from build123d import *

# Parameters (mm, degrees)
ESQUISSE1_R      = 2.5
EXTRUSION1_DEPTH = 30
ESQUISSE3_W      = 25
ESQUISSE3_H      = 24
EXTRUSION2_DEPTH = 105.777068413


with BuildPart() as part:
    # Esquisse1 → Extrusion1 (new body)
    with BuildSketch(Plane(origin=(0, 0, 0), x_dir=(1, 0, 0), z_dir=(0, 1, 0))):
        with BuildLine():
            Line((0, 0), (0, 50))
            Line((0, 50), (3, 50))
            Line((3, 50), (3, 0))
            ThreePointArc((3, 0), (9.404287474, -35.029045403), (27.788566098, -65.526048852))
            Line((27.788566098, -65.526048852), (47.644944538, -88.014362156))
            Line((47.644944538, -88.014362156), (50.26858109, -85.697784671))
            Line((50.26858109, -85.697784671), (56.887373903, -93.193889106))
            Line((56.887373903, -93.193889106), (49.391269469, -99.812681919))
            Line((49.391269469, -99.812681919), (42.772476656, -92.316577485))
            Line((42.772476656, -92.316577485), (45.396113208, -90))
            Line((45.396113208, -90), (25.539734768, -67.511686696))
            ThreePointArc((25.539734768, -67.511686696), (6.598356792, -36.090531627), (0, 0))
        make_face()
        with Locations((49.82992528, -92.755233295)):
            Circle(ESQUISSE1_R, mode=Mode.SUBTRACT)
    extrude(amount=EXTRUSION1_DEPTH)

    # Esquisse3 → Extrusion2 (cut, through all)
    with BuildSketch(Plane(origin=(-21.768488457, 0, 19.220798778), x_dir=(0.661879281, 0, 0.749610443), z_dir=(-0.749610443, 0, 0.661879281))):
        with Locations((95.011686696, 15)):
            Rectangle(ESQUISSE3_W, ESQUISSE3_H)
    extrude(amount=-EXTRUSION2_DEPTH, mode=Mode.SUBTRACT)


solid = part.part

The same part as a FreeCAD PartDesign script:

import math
import FreeCAD as App
import Part
import Sketcher
from FreeCAD import Vector

doc = App.newDocument("Part")
body = doc.addObject("PartDesign::Body", "Body")

# Sketch on XZ plane
sketch1 = body.newObject("Sketcher::SketchObject", "Sketch")
sketch1.AttachmentSupport = (doc.getObject("XZ_Plane"), [""])
sketch1.MapMode = "FlatFace"
sketch1.addGeometry(Part.LineSegment(Vector(0, -50, 0), Vector(0, 0, 0)), False)
sketch1.addGeometry(Part.ArcOfCircle(Part.Circle(Vector(102, 0, 0), Vector(0, 0, 1), 102), math.radians(139), math.radians(180)), False)
sketch1.addGeometry(Part.LineSegment(Vector(25.5, 67.5, 0), Vector(45.4, 90, 0)), False)
sketch1.addGeometry(Part.LineSegment(Vector(45.4, 90, 0), Vector(42.8, 92.3, 0)), False)
sketch1.addGeometry(Part.LineSegment(Vector(42.8, 92.3, 0), Vector(49.4, 99.8, 0)), False)
sketch1.addGeometry(Part.LineSegment(Vector(49.4, 99.8, 0), Vector(56.9, 93.2, 0)), False)
sketch1.addGeometry(Part.LineSegment(Vector(56.9, 93.2, 0), Vector(50.3, 85.7, 0)), False)
sketch1.addGeometry(Part.LineSegment(Vector(50.3, 85.7, 0), Vector(47.6, 88, 0)), False)
sketch1.addGeometry(Part.LineSegment(Vector(47.6, 88, 0), Vector(27.8, 65.5, 0)), False)
sketch1.addGeometry(Part.ArcOfCircle(Part.Circle(Vector(102, 0, 0), Vector(0, 0, 1), 99), math.radians(139), math.radians(180)), False)
sketch1.addGeometry(Part.LineSegment(Vector(3, 0, 0), Vector(3, -50, 0)), False)
sketch1.addGeometry(Part.LineSegment(Vector(3, -50, 0), Vector(0, -50, 0)), False)
sketch1.addGeometry(Part.Circle(Vector(49.8, 92.8, 0), Vector(0, 0, 1), 2.5), False)
sketch1.addConstraint(Sketcher.Constraint("Tangent", 0, 2, 1, 2))
sketch1.addConstraint(Sketcher.Constraint("Tangent", 1, 1, 2, 1))
sketch1.addConstraint(Sketcher.Constraint("Coincident", 2, 2, 3, 1))
sketch1.addConstraint(Sketcher.Constraint("Coincident", 3, 2, 4, 1))
sketch1.addConstraint(Sketcher.Constraint("Coincident", 4, 2, 5, 1))
sketch1.addConstraint(Sketcher.Constraint("Coincident", 5, 2, 6, 1))
sketch1.addConstraint(Sketcher.Constraint("Coincident", 6, 2, 7, 1))
sketch1.addConstraint(Sketcher.Constraint("Coincident", 7, 2, 8, 1))
sketch1.addConstraint(Sketcher.Constraint("Tangent", 8, 2, 9, 1))
sketch1.addConstraint(Sketcher.Constraint("Tangent", 9, 2, 10, 1))
sketch1.addConstraint(Sketcher.Constraint("Coincident", 10, 2, 11, 1))
sketch1.addConstraint(Sketcher.Constraint("Coincident", 11, 2, 0, 1))
sketch1.addConstraint(Sketcher.Constraint("Vertical", 0))
sketch1.addConstraint(Sketcher.Constraint("Vertical", 10))
sketch1.addConstraint(Sketcher.Constraint("Horizontal", 11))
sketch1.addConstraint(Sketcher.Constraint("Coincident", 0, 2, -1, 1))
sketch1.addConstraint(Sketcher.Constraint("Coincident", 9, 3, 1, 3))
sketch1.addConstraint(Sketcher.Constraint("Perpendicular", 2, 3))
sketch1.addConstraint(Sketcher.Constraint("Perpendicular", 3, 4))
sketch1.addConstraint(Sketcher.Constraint("Perpendicular", 4, 5))
sketch1.addConstraint(Sketcher.Constraint("Perpendicular", 5, 6))
sketch1.addConstraint(Sketcher.Constraint("Perpendicular", 6, 7))
sketch1.addConstraint(Sketcher.Constraint("Perpendicular", 7, 8))
sketch1.addConstraint(Sketcher.Constraint("Equal", 4, 5))
sketch1.addConstraint(Sketcher.Constraint("Equal", 5, 6))
sketch1.addConstraint(Sketcher.Constraint("Equal", 3, 7))
sketch1.addConstraint(Sketcher.Constraint("Diameter", 12, 5.0))
sketch1.addConstraint(Sketcher.Constraint("Radius", 1, 102.0))
sketch1.addConstraint(Sketcher.Constraint("Radius", 9, 99.0))
sketch1.addConstraint(Sketcher.Constraint("DistanceY", 0, 1, 0, 2, 50.0))
sketch1.addConstraint(Sketcher.Constraint("Distance", 2, 30.0))
sketch1.addConstraint(Sketcher.Constraint("Distance", 4, 10.0))
sketch1.addConstraint(Sketcher.Constraint("DistanceY", -1, 1, 2, 2, 90.0))
sketch1.addConstraint(Sketcher.Constraint("DistanceX", 1, 1, 12, 3, 24.290191))
sketch1.addConstraint(Sketcher.Constraint("DistanceY", 12, 3, 4, 2, 7.057449))
pad1 = body.newObject("PartDesign::Pad", "Pad")
pad1.Profile = sketch1
pad1.Length = 30
pad1.Reversed = True

# Sketch on an angled plane
sketch2 = body.newObject("Sketcher::SketchObject", "Sketch001")
sketch2.Placement = App.Placement(Vector(-21.768488, 0, 19.220799), App.Rotation(Vector(0.661879281, 0, 0.749610443), Vector(0, 0.999999999, 0), Vector(-0.749610443, 0, 0.661879281), "ZXY"))
sketch2.addGeometry(Part.LineSegment(Vector(83, 27, 0), Vector(83, 3, 0)), False)
sketch2.addGeometry(Part.LineSegment(Vector(83, 3, 0), Vector(108, 3, 0)), False)
sketch2.addGeometry(Part.LineSegment(Vector(108, 3, 0), Vector(108, 27, 0)), False)
sketch2.addGeometry(Part.LineSegment(Vector(108, 27, 0), Vector(83, 27, 0)), False)
sketch2.addConstraint(Sketcher.Constraint("Coincident", 0, 2, 1, 1))
sketch2.addConstraint(Sketcher.Constraint("Coincident", 1, 2, 2, 1))
sketch2.addConstraint(Sketcher.Constraint("Coincident", 2, 2, 3, 1))
sketch2.addConstraint(Sketcher.Constraint("Coincident", 3, 2, 0, 1))
sketch2.addConstraint(Sketcher.Constraint("Vertical", 0))
sketch2.addConstraint(Sketcher.Constraint("Horizontal", 1))
sketch2.addConstraint(Sketcher.Constraint("Vertical", 2))
sketch2.addConstraint(Sketcher.Constraint("Horizontal", 3))
sketch2.addConstraint(Sketcher.Constraint("DistanceX", 1, 1, 1, 2, 25.0))
sketch2.addConstraint(Sketcher.Constraint("DistanceY", 0, 2, 0, 1, 24.0))
sketch2.addConstraint(Sketcher.Constraint("DistanceY", -1, 1, 0, 2, 3.0))
sketch2.addConstraint(Sketcher.Constraint("DistanceX", -1, 1, 0, 2, 82.511687))
pocket1 = body.newObject("PartDesign::Pocket", "Pocket")
pocket1.Profile = sketch2
pocket1.Type = "ThroughAll"

doc.recompute()
